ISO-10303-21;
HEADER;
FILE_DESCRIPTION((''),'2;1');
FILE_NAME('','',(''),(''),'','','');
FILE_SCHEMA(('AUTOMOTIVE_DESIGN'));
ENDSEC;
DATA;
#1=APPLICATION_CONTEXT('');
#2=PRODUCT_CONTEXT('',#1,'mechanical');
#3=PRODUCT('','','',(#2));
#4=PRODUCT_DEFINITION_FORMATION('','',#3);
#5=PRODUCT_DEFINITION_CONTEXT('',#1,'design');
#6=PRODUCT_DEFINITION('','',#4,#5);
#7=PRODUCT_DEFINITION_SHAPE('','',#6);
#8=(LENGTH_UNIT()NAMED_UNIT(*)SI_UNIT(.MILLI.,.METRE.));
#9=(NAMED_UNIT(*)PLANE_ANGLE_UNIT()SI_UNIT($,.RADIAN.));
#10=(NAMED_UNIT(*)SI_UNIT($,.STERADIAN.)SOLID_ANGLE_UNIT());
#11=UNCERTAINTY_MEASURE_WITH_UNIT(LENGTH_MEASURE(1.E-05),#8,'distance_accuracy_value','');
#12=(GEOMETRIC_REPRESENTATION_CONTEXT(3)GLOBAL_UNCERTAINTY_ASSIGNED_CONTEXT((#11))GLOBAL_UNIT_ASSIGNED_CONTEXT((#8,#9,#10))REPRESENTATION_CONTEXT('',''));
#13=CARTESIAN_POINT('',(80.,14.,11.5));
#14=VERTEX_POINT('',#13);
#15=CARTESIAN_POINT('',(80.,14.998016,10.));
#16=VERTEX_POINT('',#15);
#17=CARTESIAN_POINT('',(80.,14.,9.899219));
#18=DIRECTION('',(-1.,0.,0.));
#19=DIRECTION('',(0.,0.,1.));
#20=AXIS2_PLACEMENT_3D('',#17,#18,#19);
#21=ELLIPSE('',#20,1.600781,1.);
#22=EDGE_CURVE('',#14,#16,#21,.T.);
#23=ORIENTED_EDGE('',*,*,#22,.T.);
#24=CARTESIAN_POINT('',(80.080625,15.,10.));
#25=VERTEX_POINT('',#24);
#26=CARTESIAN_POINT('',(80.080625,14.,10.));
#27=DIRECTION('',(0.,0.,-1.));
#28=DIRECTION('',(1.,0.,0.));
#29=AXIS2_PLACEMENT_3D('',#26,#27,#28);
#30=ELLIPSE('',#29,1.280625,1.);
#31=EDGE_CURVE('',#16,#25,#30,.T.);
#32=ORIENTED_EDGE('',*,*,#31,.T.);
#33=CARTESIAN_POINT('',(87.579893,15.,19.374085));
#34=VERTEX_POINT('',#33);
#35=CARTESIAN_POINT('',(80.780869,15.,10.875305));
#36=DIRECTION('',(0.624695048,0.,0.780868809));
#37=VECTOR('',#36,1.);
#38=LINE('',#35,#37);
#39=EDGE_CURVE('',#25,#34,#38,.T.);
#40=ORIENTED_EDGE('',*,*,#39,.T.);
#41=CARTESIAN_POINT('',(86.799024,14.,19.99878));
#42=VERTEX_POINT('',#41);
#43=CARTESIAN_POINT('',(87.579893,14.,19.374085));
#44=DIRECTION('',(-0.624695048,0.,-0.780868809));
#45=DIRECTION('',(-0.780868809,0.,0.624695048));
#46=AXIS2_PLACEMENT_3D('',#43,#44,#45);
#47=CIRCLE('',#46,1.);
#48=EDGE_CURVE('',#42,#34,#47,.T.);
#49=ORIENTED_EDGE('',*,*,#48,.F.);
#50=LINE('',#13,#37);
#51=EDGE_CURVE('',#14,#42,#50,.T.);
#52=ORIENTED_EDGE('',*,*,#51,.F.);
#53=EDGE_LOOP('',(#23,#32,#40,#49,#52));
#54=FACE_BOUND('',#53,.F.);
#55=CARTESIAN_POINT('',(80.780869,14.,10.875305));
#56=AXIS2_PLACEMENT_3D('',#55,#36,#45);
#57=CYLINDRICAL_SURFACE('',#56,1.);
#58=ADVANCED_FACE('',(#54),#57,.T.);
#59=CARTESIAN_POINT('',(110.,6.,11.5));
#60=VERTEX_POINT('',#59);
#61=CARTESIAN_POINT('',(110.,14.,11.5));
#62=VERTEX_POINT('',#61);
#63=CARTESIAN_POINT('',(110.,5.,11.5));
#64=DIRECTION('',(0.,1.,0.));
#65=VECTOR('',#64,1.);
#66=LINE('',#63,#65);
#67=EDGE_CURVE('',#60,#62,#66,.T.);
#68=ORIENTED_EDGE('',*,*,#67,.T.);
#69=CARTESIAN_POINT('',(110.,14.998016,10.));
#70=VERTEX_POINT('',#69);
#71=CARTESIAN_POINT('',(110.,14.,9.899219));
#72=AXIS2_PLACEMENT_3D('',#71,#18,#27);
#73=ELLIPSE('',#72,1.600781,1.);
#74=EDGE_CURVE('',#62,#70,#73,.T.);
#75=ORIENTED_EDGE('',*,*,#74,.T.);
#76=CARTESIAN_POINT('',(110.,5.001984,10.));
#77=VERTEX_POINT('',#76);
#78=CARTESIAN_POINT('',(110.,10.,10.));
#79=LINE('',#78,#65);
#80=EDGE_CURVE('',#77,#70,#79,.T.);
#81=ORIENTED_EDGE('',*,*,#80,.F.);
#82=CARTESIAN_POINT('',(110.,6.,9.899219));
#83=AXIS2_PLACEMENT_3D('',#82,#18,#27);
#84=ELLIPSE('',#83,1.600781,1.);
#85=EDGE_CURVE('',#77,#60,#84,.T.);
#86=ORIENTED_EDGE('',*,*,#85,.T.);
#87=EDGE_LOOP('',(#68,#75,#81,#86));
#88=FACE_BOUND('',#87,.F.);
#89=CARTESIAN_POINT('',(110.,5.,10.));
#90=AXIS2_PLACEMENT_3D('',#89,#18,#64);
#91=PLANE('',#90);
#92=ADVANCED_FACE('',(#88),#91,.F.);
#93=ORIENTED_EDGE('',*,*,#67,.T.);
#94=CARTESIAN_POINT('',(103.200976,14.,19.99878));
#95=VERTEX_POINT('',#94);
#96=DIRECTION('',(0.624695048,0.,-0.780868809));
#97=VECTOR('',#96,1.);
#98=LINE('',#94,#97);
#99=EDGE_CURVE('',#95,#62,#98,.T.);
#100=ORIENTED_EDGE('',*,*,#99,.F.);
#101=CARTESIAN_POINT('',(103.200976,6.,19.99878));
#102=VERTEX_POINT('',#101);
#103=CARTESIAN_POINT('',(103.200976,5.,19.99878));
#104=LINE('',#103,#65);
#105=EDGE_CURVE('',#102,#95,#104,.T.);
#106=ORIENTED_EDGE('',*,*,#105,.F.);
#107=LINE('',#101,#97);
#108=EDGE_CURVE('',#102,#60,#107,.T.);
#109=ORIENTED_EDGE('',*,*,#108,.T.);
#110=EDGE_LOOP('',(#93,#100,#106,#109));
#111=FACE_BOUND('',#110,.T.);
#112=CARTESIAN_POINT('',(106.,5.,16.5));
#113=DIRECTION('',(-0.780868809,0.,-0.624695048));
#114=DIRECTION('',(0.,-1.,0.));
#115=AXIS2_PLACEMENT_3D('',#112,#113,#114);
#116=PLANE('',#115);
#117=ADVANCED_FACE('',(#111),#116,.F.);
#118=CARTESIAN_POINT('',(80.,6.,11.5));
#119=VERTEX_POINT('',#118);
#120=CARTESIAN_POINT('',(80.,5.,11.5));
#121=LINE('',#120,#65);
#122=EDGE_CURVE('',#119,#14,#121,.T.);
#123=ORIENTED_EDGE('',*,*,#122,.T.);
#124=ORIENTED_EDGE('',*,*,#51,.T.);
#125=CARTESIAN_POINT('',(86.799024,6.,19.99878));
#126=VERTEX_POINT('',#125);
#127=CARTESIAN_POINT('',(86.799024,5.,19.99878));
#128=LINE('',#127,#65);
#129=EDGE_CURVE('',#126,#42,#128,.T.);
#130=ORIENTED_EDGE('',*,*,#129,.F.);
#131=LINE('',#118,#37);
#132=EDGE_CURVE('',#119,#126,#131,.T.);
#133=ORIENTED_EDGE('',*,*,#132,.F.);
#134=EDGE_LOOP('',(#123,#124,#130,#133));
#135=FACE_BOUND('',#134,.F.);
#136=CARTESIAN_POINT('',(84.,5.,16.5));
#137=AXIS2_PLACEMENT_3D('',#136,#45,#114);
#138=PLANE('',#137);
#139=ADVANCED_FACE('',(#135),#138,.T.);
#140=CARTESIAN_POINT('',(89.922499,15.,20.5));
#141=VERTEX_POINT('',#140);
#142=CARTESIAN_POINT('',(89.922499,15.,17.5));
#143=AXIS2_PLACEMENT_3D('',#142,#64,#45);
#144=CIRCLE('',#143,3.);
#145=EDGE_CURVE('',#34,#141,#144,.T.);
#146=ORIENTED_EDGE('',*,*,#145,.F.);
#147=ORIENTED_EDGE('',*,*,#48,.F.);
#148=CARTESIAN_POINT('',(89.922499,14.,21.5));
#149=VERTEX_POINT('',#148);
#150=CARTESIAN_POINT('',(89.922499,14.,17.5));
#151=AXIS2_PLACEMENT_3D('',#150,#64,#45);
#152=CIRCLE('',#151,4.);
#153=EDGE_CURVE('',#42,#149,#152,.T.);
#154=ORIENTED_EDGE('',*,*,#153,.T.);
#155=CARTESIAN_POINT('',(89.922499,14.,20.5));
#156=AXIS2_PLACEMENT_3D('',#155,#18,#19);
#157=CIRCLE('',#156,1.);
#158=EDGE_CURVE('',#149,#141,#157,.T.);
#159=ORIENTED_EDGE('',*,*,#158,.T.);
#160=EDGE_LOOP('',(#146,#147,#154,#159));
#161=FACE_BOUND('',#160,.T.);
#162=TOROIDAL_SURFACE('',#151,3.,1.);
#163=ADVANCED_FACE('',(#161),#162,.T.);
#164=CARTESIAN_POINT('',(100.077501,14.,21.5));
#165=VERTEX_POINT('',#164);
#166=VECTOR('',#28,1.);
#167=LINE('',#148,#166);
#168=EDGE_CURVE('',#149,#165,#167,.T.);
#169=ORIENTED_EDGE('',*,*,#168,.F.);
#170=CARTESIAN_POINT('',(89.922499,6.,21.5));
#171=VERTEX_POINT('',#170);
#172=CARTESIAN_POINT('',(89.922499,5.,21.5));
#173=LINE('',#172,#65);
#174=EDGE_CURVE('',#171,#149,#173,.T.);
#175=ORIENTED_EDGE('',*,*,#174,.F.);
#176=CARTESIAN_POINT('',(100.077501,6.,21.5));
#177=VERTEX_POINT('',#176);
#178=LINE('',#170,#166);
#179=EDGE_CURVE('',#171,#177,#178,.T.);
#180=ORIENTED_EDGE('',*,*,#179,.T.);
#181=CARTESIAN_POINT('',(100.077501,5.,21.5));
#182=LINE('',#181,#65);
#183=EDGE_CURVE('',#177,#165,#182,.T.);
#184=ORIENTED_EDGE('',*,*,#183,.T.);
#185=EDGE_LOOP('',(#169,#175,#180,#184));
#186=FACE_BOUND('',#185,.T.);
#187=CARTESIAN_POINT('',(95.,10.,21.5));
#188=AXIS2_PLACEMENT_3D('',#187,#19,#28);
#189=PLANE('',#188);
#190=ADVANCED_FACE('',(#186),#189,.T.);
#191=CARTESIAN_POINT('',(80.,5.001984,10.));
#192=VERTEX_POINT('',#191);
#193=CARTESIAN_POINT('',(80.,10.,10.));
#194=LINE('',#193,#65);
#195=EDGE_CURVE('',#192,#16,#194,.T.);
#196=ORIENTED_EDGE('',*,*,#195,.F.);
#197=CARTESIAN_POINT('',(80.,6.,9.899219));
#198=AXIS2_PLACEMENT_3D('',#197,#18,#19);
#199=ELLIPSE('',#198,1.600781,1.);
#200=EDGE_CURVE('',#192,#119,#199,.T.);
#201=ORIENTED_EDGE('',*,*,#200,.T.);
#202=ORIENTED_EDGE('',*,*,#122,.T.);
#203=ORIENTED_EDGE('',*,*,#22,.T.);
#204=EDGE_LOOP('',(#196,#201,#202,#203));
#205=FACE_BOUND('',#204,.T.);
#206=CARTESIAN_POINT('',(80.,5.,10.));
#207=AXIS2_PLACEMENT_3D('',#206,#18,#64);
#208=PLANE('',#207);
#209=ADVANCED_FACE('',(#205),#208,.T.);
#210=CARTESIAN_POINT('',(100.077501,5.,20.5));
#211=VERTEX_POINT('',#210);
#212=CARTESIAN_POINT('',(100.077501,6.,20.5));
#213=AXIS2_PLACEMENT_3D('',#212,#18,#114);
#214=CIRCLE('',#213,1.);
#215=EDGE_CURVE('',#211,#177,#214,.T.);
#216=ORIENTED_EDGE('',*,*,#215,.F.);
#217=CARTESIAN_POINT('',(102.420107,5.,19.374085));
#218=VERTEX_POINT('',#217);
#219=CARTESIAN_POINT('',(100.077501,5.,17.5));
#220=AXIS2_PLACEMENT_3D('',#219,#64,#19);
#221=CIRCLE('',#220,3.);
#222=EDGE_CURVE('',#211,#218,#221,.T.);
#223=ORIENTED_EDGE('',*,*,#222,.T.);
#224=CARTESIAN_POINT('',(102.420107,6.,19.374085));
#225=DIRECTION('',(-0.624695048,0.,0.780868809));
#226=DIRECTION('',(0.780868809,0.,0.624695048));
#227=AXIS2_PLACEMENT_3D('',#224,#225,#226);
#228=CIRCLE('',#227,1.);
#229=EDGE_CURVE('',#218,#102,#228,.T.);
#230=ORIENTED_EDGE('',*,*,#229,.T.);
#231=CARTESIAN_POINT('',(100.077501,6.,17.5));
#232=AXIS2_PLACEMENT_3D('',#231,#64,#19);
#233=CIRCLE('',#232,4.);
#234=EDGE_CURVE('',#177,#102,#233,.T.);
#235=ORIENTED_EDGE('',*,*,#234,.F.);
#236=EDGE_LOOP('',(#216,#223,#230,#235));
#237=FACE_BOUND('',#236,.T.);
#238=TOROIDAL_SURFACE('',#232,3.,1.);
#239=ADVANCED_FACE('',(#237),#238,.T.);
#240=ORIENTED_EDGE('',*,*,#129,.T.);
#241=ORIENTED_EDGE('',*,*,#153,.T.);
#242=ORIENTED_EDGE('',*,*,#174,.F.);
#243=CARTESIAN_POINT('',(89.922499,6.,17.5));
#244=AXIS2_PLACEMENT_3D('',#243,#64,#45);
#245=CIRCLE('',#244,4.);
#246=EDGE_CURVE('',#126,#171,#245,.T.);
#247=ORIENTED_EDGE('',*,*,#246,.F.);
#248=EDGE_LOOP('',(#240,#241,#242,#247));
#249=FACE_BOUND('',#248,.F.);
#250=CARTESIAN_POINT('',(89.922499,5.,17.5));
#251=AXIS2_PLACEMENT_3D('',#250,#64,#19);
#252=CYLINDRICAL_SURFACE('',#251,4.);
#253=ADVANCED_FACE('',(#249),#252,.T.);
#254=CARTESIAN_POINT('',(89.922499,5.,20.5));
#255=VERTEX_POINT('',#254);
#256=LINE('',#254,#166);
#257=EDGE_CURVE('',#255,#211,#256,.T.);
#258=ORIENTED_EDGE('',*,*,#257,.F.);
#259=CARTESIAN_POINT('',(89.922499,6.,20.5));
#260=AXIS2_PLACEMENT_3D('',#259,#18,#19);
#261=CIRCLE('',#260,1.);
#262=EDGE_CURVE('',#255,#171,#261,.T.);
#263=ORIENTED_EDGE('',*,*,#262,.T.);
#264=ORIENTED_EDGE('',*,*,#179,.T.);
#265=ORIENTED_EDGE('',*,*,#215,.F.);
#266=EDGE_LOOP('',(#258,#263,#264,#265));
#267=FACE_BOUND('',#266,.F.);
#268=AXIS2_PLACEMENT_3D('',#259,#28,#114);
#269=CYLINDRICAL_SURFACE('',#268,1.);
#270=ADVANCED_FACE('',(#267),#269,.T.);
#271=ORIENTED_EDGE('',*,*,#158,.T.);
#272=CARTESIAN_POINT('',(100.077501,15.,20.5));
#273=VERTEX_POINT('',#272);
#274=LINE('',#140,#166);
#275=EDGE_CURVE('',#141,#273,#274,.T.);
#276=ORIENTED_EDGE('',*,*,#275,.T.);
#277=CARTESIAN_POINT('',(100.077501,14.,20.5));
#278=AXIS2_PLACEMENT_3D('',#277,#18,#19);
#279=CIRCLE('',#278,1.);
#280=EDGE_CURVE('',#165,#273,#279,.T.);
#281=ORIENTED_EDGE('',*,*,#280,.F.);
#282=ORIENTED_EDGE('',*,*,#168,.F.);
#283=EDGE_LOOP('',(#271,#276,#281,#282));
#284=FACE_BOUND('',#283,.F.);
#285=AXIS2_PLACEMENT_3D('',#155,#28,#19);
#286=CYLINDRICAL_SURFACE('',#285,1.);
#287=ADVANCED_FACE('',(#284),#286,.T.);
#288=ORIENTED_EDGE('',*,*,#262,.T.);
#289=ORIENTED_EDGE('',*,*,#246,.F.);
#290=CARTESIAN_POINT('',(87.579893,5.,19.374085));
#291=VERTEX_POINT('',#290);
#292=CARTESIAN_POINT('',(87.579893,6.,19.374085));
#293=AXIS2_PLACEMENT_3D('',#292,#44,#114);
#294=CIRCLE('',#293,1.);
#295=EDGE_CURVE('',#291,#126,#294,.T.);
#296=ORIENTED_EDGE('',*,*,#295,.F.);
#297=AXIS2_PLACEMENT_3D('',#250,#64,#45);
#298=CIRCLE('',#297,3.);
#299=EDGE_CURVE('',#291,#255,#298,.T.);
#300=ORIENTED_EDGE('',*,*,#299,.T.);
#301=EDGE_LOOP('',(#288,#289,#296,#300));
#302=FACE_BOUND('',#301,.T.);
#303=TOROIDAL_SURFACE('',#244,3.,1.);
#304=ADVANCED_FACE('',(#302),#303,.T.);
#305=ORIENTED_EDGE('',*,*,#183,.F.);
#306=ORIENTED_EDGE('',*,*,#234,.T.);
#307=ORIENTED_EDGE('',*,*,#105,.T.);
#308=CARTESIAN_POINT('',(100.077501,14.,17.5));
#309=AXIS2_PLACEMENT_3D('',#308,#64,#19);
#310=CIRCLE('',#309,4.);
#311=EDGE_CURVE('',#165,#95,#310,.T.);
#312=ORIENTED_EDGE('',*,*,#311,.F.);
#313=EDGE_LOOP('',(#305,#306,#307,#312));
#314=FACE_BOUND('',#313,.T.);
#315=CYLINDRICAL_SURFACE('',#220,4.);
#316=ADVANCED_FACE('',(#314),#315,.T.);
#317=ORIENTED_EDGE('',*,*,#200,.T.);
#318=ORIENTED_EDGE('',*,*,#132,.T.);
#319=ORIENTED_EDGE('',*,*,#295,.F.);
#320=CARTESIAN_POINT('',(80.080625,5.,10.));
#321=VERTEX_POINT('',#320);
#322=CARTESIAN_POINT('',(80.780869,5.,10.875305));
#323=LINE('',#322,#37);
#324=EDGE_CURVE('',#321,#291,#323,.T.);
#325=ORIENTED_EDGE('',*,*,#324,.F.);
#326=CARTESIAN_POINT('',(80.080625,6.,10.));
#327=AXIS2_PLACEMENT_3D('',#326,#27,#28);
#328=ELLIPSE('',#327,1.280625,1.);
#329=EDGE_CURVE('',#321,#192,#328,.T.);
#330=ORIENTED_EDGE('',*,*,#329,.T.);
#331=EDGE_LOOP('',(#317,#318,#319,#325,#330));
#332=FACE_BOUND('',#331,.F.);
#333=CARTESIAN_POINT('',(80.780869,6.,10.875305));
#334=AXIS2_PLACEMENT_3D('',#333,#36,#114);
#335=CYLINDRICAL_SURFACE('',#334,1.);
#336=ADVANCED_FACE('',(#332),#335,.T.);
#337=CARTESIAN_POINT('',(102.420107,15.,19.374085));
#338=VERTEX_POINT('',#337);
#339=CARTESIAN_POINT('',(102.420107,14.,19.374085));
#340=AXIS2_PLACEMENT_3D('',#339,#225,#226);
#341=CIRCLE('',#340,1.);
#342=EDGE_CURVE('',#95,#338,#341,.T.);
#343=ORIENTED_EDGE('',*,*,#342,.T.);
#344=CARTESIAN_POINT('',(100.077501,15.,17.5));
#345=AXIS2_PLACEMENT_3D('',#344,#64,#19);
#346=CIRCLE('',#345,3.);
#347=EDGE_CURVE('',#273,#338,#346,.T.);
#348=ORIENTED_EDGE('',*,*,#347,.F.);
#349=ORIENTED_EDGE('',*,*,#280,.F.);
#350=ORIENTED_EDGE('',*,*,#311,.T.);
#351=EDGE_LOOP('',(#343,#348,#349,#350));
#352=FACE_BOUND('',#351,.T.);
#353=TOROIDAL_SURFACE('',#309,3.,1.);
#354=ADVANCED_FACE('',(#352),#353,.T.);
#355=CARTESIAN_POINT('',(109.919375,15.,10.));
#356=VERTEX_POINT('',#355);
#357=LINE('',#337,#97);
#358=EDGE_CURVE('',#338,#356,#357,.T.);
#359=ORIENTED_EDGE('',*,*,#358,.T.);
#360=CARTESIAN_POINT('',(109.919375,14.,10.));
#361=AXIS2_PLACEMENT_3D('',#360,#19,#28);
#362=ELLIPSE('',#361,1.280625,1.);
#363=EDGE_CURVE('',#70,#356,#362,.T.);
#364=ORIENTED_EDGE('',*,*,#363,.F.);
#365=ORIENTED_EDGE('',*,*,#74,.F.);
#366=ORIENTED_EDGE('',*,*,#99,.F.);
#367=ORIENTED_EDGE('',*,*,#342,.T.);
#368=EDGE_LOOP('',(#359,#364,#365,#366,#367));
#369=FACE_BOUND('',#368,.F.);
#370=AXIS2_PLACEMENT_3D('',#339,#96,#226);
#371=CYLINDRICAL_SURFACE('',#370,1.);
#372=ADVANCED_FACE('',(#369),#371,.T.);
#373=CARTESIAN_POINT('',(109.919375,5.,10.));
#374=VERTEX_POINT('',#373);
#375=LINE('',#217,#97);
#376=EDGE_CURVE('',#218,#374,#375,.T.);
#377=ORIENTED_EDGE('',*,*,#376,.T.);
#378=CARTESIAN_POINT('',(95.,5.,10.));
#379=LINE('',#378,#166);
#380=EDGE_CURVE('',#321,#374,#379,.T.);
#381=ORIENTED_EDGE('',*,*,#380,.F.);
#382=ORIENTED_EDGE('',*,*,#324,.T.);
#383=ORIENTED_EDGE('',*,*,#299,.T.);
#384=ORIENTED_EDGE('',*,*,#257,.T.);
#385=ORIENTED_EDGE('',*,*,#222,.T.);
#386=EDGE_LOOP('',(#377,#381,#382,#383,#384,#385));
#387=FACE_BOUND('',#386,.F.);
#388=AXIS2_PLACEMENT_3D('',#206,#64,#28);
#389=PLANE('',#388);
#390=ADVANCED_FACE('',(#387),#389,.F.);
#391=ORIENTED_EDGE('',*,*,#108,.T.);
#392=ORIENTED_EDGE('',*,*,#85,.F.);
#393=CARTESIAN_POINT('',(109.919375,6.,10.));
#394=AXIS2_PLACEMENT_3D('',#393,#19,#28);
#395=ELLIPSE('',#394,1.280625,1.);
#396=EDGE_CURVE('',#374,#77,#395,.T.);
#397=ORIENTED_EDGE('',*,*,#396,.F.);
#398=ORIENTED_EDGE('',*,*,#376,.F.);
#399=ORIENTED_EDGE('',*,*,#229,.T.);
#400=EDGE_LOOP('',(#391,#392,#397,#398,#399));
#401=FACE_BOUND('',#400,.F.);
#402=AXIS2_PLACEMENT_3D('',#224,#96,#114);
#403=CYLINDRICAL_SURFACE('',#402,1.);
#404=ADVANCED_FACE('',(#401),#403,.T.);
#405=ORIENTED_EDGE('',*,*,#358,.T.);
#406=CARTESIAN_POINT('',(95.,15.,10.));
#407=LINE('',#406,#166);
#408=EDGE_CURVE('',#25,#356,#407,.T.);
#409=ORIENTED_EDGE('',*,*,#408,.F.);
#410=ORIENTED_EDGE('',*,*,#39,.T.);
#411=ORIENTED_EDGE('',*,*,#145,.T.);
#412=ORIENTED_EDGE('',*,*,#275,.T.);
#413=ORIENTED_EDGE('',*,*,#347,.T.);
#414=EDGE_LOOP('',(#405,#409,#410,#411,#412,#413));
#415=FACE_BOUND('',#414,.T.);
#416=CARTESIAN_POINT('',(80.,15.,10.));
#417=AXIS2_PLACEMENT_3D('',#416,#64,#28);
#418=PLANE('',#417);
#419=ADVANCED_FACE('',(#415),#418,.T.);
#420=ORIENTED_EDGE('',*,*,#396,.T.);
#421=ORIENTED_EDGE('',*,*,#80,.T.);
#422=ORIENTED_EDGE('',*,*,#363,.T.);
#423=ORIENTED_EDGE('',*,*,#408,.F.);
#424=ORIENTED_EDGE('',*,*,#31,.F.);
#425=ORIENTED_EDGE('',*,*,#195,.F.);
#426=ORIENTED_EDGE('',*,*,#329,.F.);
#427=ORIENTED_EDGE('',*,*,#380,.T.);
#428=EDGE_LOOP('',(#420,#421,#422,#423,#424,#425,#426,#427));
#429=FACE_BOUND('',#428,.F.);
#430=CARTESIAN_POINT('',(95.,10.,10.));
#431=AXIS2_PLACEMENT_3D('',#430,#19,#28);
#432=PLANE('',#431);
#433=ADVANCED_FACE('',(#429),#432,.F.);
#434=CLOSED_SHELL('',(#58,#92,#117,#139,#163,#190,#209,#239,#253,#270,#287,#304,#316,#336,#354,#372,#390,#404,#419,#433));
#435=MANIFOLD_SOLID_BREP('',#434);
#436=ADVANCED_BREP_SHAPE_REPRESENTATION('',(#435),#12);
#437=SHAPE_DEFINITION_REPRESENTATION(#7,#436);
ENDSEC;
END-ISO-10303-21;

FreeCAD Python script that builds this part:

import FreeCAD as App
import Part
import Sketcher

V = App.Vector


def edges_at(feature, points):
    """Names of the edges that pass closest to the given points."""
    edges = feature.Shape.Edges
    near = lambda p: min(range(len(edges)), key=lambda i: edges[i].distToShape(Part.Vertex(*p))[0])
    return sorted({f"Edge{near(p) + 1}" for p in points})

doc = App.newDocument("Part")
body = doc.addObject("PartDesign::Body", "Body")

sketch1 = doc.addObject("Sketcher::SketchObject", "Sketch")
body.addObject(sketch1)
sketch1.AttachmentSupport = (doc.XY_Plane, [""])
sketch1.MapMode = "FlatFace"
sketch1.AttachmentOffset = App.Placement(V(0, 0, 3), App.Rotation())
sketch1.addGeometry([
    Part.LineSegment(V(80, 15, 0), V(80, 5, 0)),
    Part.LineSegment(V(80, 5, 0), V(110, 5, 0)),
    Part.LineSegment(V(110, 5, 0), V(110, 15, 0)),
    Part.LineSegment(V(110, 15, 0), V(80, 15, 0)),
], False)
sketch1.addConstraint([
    Sketcher.Constraint("Coincident", 0, 2, 1, 1),
    Sketcher.Constraint("Coincident", 1, 2, 2, 1),
    Sketcher.Constraint("Coincident", 2, 2, 3, 1),
    Sketcher.Constraint("Coincident", 3, 2, 0, 1),
    Sketcher.Constraint("Vertical", 0),
    Sketcher.Constraint("Horizontal", 1),
    Sketcher.Constraint("Vertical", 2),
    Sketcher.Constraint("Horizontal", 3),
    Sketcher.Constraint("DistanceX", 1, 1, 1, 2, 30.0),
    Sketcher.Constraint("DistanceY", 0, 2, 0, 1, 10.0),
    Sketcher.Constraint("DistanceX", -1, 1, 0, 2, 80.0),
    Sketcher.Constraint("DistanceY", -1, 1, 0, 2, 5.0),
])
pad1 = doc.addObject("PartDesign::Pad", "Pad")
body.addObject(pad1)
pad1.Profile = sketch1
pad1.Length = 11.5
doc.recompute()

chamfer = doc.addObject("PartDesign::Chamfer", "Chamfer")
body.addObject(chamfer)
chamfer.Base = (pad1, edges_at(pad1, [(110, 10, 14.5)]))
chamfer.ChamferType = "Two distances"
chamfer.Size = 10
chamfer.Size2 = 8
doc.recompute()

chamfer2 = doc.addObject("PartDesign::Chamfer", "Chamfer001")
body.addObject(chamfer2)
chamfer2.Base = (chamfer, edges_at(chamfer, [(80, 10, 14.5)]))
chamfer2.ChamferType = "Two distances"
chamfer2.Size = 10
chamfer2.Size2 = 8
chamfer2.FlipDirection = True
doc.recompute()

fillet = doc.addObject("PartDesign::Fillet", "Fillet")
body.addObject(fillet)
fillet.Base = (chamfer2, edges_at(chamfer2, [(88, 10, 14.5), (102, 10, 14.5)]))
fillet.Radius = 4
doc.recompute()

fillet2 = doc.addObject("PartDesign::Fillet", "Fillet001")
body.addObject(fillet2)
fillet2.Base = (fillet, edges_at(fillet, [
    (83.4, 5, 8.749),
    (88.19, 5, 14.105),
    (95, 5, 14.5),
    (101.81, 5, 14.105),
    (106.6, 5, 8.749),
    (83.4, 15, 8.749),
    (88.19, 15, 14.105),
    (95, 15, 14.5),
    (101.81, 15, 14.105),
    (106.6, 15, 8.749),
]))
fillet2.Radius = 1
body2 = doc.addObject("PartDesign::Body", "Body001")
doc.recompute()

body.Placement = App.Placement(V(0, 0, 7), App.Rotation(V(0, 0, 1), 0))
boolean = doc.addObject("PartDesign::Boolean", "Boolean")
body2.addObject(boolean)
boolean.Type = "Fuse"
boolean.addObjects([body])

doc.recompute()
